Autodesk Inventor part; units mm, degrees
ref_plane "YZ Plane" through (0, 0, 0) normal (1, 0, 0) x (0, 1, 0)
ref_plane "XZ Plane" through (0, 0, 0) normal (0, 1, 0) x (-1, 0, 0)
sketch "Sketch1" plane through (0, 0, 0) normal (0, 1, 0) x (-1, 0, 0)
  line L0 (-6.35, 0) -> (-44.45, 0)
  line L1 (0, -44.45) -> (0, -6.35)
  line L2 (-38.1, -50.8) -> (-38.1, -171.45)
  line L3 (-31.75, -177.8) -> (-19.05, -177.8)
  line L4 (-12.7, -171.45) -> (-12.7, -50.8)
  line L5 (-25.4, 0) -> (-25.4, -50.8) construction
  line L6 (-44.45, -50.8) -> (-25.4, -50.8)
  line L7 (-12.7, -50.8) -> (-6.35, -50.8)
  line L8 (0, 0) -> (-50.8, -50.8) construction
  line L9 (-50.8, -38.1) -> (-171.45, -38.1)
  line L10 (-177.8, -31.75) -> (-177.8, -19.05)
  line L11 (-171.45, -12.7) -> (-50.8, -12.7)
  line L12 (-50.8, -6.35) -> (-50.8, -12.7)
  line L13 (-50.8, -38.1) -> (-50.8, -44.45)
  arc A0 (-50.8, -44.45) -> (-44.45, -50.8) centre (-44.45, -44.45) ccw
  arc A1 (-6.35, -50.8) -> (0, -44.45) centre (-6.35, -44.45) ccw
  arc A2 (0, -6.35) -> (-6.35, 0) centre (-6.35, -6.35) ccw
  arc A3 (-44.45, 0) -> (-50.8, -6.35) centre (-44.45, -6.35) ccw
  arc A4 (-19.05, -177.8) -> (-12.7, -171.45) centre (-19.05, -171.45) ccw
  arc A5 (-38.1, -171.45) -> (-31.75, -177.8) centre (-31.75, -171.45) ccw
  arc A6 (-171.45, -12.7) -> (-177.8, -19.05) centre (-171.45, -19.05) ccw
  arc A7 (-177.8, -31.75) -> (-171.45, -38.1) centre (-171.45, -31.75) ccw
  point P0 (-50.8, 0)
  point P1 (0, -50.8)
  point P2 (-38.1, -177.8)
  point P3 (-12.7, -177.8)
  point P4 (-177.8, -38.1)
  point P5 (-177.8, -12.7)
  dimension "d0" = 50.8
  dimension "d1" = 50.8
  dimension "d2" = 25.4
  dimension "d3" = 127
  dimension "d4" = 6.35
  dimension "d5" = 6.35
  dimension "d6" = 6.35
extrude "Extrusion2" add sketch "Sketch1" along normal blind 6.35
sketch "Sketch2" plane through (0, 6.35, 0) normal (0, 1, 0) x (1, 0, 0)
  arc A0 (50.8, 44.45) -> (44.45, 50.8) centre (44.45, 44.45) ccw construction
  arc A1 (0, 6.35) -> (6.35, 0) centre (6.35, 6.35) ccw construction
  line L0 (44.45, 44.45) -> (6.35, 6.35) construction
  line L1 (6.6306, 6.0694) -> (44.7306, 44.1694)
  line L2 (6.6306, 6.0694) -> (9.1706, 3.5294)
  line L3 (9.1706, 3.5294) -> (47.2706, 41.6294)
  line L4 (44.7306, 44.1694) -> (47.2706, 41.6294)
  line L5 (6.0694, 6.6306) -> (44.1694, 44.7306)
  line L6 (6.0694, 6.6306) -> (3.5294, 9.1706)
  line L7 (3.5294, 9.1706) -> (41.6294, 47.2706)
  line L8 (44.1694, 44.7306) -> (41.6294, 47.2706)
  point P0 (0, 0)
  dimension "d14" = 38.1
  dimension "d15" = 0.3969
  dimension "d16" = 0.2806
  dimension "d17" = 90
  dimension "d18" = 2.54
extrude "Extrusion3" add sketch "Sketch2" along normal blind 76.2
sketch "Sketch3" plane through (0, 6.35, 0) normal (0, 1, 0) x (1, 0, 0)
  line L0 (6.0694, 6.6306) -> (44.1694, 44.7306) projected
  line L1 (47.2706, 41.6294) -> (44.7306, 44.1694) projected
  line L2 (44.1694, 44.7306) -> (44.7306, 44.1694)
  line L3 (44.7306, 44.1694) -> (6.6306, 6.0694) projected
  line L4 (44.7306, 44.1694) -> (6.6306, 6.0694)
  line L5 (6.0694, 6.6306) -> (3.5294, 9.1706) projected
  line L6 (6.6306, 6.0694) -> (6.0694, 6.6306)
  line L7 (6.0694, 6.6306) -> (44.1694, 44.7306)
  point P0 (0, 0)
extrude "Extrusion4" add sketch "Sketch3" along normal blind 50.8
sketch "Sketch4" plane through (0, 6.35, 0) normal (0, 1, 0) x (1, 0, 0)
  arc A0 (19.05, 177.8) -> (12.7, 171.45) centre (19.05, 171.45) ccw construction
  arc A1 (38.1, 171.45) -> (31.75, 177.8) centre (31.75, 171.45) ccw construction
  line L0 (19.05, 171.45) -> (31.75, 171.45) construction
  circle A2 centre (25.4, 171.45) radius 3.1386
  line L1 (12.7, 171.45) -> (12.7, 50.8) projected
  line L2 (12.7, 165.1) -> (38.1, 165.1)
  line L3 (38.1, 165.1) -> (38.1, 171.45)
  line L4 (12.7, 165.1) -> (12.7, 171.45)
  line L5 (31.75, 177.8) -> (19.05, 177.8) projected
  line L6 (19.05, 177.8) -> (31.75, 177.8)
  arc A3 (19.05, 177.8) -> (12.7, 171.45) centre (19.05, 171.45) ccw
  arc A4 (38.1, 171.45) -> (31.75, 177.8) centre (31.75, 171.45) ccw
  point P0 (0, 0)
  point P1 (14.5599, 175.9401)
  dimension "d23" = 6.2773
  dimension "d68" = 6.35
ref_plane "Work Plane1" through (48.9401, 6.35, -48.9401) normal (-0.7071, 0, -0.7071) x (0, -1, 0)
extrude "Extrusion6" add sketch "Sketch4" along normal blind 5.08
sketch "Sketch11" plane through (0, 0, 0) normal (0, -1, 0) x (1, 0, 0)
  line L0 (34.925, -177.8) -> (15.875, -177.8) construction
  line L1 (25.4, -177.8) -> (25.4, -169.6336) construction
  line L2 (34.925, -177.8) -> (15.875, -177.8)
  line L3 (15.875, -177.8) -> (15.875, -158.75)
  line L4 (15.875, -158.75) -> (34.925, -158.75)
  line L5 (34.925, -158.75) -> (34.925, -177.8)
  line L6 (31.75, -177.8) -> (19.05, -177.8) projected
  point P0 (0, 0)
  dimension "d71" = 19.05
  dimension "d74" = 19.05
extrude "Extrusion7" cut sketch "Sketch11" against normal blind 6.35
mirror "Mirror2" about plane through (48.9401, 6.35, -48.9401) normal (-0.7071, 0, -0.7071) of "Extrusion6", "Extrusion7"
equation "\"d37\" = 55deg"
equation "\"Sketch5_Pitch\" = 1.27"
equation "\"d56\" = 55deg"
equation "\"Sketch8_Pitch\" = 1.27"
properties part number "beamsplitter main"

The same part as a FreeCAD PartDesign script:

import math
import FreeCAD as App
import Part
import Sketcher
from FreeCAD import Vector
Q = App.Units.Quantity

doc = App.newDocument("Part")
body = doc.addObject("PartDesign::Body", "Body")

# Sketch on XZ plane
sketch1 = body.newObject("Sketcher::SketchObject", "Sketch")
sketch1.AttachmentSupport = (doc.getObject("XZ_Plane"), [""])
sketch1.MapMode = "FlatFace"
sketch1.addGeometry([
    Part.ArcOfCircle(Part.Circle(Vector(6, -6, 0), Vector(0, 0, 1), 6), math.radians(90), math.radians(180)),  # 0
    Part.LineSegment(Vector(6, 0, 0), Vector(44, 0, 0)),  # 1
    Part.ArcOfCircle(Part.Circle(Vector(44, -6, 0), Vector(0, 0, 1), 6), math.radians(0), math.radians(90)),  # 2
    Part.LineSegment(Vector(51, -6, 0), Vector(51, -13, 0)),  # 3
    Part.LineSegment(Vector(51, -13, 0), Vector(171, -13, 0)),  # 4
    Part.ArcOfCircle(Part.Circle(Vector(171, -19, 0), Vector(0, 0, 1), 6), math.radians(0), math.radians(90)),  # 5
    Part.LineSegment(Vector(178, -19, 0), Vector(178, -32, 0)),  # 6
    Part.ArcOfCircle(Part.Circle(Vector(171, -32, 0), Vector(0, 0, 1), 6), math.radians(-90), math.radians(0)),  # 7
    Part.LineSegment(Vector(171, -38, 0), Vector(51, -38, 0)),  # 8
    Part.LineSegment(Vector(51, -38, 0), Vector(51, -44, 0)),  # 9
    Part.ArcOfCircle(Part.Circle(Vector(44, -44, 0), Vector(0, 0, 1), 6), math.radians(-90), math.radians(0)),  # 10
    Part.LineSegment(Vector(44, -51, 0), Vector(38, -51, 0)),  # 11
    Part.LineSegment(Vector(38, -51, 0), Vector(38, -171, 0)),  # 12
    Part.ArcOfCircle(Part.Circle(Vector(32, -171, 0), Vector(0, 0, 1), 6), math.radians(-90), math.radians(0)),  # 13
    Part.LineSegment(Vector(32, -178, 0), Vector(19, -178, 0)),  # 14
    Part.ArcOfCircle(Part.Circle(Vector(19, -171, 0), Vector(0, 0, 1), 6), math.radians(180), math.radians(270)),  # 15
    Part.LineSegment(Vector(13, -171, 0), Vector(13, -51, 0)),  # 16
    Part.LineSegment(Vector(13, -51, 0), Vector(6, -51, 0)),  # 17
    Part.ArcOfCircle(Part.Circle(Vector(6, -44, 0), Vector(0, 0, 1), 6), math.radians(180), math.radians(270)),  # 18
    Part.LineSegment(Vector(0, -44, 0), Vector(0, -6, 0)),  # 19
], False)
sketch1.addConstraint([
    Sketcher.Constraint("Tangent", 0, 1, 1, 1),
    Sketcher.Constraint("Tangent", 1, 2, 2, 2),
    Sketcher.Constraint("Tangent", 2, 1, 3, 1),
    Sketcher.Constraint("Coincident", 3, 2, 4, 1),
    Sketcher.Constraint("Tangent", 4, 2, 5, 2),
    Sketcher.Constraint("Tangent", 5, 1, 6, 1),
    Sketcher.Constraint("Tangent", 6, 2, 7, 2),
    Sketcher.Constraint("Tangent", 7, 1, 8, 1),
    Sketcher.Constraint("Coincident", 8, 2, 9, 1),
    Sketcher.Constraint("Tangent", 9, 2, 10, 2),
    Sketcher.Constraint("Tangent", 10, 1, 11, 1),
    Sketcher.Constraint("Coincident", 11, 2, 12, 1),
    Sketcher.Constraint("Tangent", 12, 2, 13, 2),
    Sketcher.Constraint("Tangent", 13, 1, 14, 1),
    Sketcher.Constraint("Tangent", 14, 2, 15, 2),
    Sketcher.Constraint("Tangent", 15, 1, 16, 1),
    Sketcher.Constraint("Coincident", 16, 2, 17, 1),
    Sketcher.Constraint("Tangent", 17, 2, 18, 2),
    Sketcher.Constraint("Tangent", 18, 1, 19, 1),
    Sketcher.Constraint("Tangent", 19, 2, 0, 2),
    Sketcher.Constraint("Horizontal", 1),
    Sketcher.Constraint("Vertical", 3),
    Sketcher.Constraint("Horizontal", 4),
    Sketcher.Constraint("Vertical", 6),
    Sketcher.Constraint("Horizontal", 8),
    Sketcher.Constraint("Vertical", 9),
    Sketcher.Constraint("Horizontal", 11),
    Sketcher.Constraint("Vertical", 12),
    Sketcher.Constraint("Horizontal", 14),
    Sketcher.Constraint("Vertical", 16),
    Sketcher.Constraint("Horizontal", 17),
    Sketcher.Constraint("Vertical", 19),
    Sketcher.Constraint("Equal", 0, 2),
    Sketcher.Constraint("Equal", 2, 5),
    Sketcher.Constraint("Equal", 5, 7),
    Sketcher.Constraint("Equal", 7, 10),
    Sketcher.Constraint("Equal", 10, 13),
    Sketcher.Constraint("Equal", 13, 15),
    Sketcher.Constraint("Equal", 15, 18),
    Sketcher.Constraint("PointOnObject", 0, 1, -1),
    Sketcher.Constraint("PointOnObject", 18, 1, -2),
    Sketcher.Constraint("Horizontal", 10, 3, 18, 3),
    Sketcher.Constraint("Vertical", 2, 3, 10, 3),
    Sketcher.Constraint("Equal", 11, 17),
    Sketcher.Constraint("Equal", 17, 3),
    Sketcher.Constraint("Equal", 14, 6),
    Sketcher.Constraint("Equal", 3, 9),
    Sketcher.Constraint("Equal", 8, 12),
    Sketcher.Constraint("Radius", 0, Q("0.25 in")),
    Sketcher.Constraint("DistanceX", -1, 1, 2, 1, Q("2 in")),
    Sketcher.Constraint("DistanceX", 2, 3, 5, 3, Q("5 in")),
    Sketcher.Constraint("DistanceY", 7, 3, 2, 3, Q("1 in")),
])
pad1 = body.newObject("PartDesign::Pad", "Pad")
pad1.Profile = sketch1
pad1.Length = Q("0.25 in")
pad1.Reversed = True

# Sketch on XZ plane
sketch2 = body.newObject("Sketcher::SketchObject", "Sketch001")
sketch2.AttachmentSupport = (doc.getObject("XZ_Plane"), [""])
sketch2.MapMode = "FlatFace"
sketch2.AttachmentOffset = App.Placement(Vector(0, 0, -0.25 * 25.4), App.Rotation())
sketch2.addGeometry([
    Part.LineSegment(Vector(44.7, -44.2, 0), Vector(6.6, -6.1, 0)),  # 0
    Part.LineSegment(Vector(6.6, -6.1, 0), Vector(9.2, -3.5, 0)),  # 1
    Part.LineSegment(Vector(9.2, -3.5, 0), Vector(47.3, -41.6, 0)),  # 2
    Part.LineSegment(Vector(47.3, -41.6, 0), Vector(44.7, -44.2, 0)),  # 3
    Part.LineSegment(Vector(3.5, -9.2, 0), Vector(6.1, -6.6, 0)),  # 4
    Part.LineSegment(Vector(6.1, -6.6, 0), Vector(44.2, -44.7, 0)),  # 5
    Part.LineSegment(Vector(44.2, -44.7, 0), Vector(41.6, -47.3, 0)),  # 6
    Part.LineSegment(Vector(41.6, -47.3, 0), Vector(3.5, -9.2, 0)),  # 7
], False)
sketch2.addConstraint([
    Sketcher.Constraint("Coincident", 0, 2, 1, 1),
    Sketcher.Constraint("Coincident", 1, 2, 2, 1),
    Sketcher.Constraint("Coincident", 2, 2, 3, 1),
    Sketcher.Constraint("Coincident", 3, 2, 0, 1),
    Sketcher.Constraint("Coincident", 4, 2, 5, 1),
    Sketcher.Constraint("Coincident", 5, 2, 6, 1),
    Sketcher.Constraint("Coincident", 6, 2, 7, 1),
    Sketcher.Constraint("Coincident", 7, 2, 4, 1),
    Sketcher.Constraint("Perpendicular", 0, 1),
    Sketcher.Constraint("Perpendicular", 1, 2),
    Sketcher.Constraint("Perpendicular", 2, 3),
    Sketcher.Constraint("Parallel", 3, 4),
    Sketcher.Constraint("Perpendicular", 4, 5),
    Sketcher.Constraint("Perpendicular", 5, 6),
    Sketcher.Constraint("Perpendicular", 6, 7),
    Sketcher.Constraint("Equal", 3, 4),
    Sketcher.Constraint("Equal", 2, 5),
    Sketcher.Constraint("DistanceX", 0, 2, 1, 2, Q("0.1 in")),
    Sketcher.Constraint("DistanceY", 0, 2, 1, 2, Q("0.1 in")),
    Sketcher.Constraint("DistanceX", 1, 2, 2, 2, Q("1.5 in")),
    Sketcher.Constraint("DistanceX", 4, 2, 0, 2, Q("0.0221 in")),
    Sketcher.Constraint("DistanceY", 4, 2, 0, 2, Q("0.0221 in")),
    Sketcher.Constraint("DistanceX", -1, 1, 0, 2, 6.6306),
    Sketcher.Constraint("DistanceY", 0, 2, -1, 1, 6.0694),
])
pad2 = body.newObject("PartDesign::Pad", "Pad001")
pad2.Profile = sketch2
pad2.Length = Q("3 in")
pad2.Reversed = True

# Sketch on XZ plane
sketch3 = body.newObject("Sketcher::SketchObject", "Sketch002")
sketch3.AttachmentSupport = (doc.getObject("XZ_Plane"), [""])
sketch3.MapMode = "FlatFace"
sketch3.AttachmentOffset = App.Placement(Vector(0, 0, -0.25 * 25.4), App.Rotation())
sketch3.addGeometry([
    Part.LineSegment(Vector(44.2, -44.7, 0), Vector(6.1, -6.6, 0)),
    Part.LineSegment(Vector(6.1, -6.6, 0), Vector(6.6, -6.1, 0)),
    Part.LineSegment(Vector(6.6, -6.1, 0), Vector(44.7, -44.2, 0)),
    Part.LineSegment(Vector(44.7, -44.2, 0), Vector(44.2, -44.7, 0)),
], False)
sketch3.addConstraint([
    Sketcher.Constraint("Coincident", 0, 2, 1, 1),
    Sketcher.Constraint("Coincident", 1, 2, 2, 1),
    Sketcher.Constraint("Coincident", 2, 2, 3, 1),
    Sketcher.Constraint("Coincident", 3, 2, 0, 1),
    Sketcher.Constraint("Perpendicular", 0, 1),
    Sketcher.Constraint("Perpendicular", 1, 2),
    Sketcher.Constraint("Perpendicular", 2, 3),
    Sketcher.Constraint("Angle", 0, Q("135 deg")),
    Sketcher.Constraint("DistanceX", 1, 2, 2, 2, Q("1.5 in")),
    Sketcher.Constraint("Distance", 1, Q("0.031248 in")),
    Sketcher.Constraint("DistanceX", -1, 1, 0, 2, 6.0694),
    Sketcher.Constraint("DistanceY", 0, 2, -1, 1, 6.6306),
])
pad3 = body.newObject("PartDesign::Pad", "Pad002")
pad3.Profile = sketch3
pad3.Length = Q("2 in")
pad3.Reversed = True

# Sketch on XZ plane
sketch4 = body.newObject("Sketcher::SketchObject", "Sketch003")
sketch4.AttachmentSupport = (doc.getObject("XZ_Plane"), [""])
sketch4.MapMode = "FlatFace"
sketch4.AttachmentOffset = App.Placement(Vector(0, 0, -0.25 * 25.4), App.Rotation())
sketch4.addGeometry([
    Part.ArcOfCircle(Part.Circle(Vector(19.1, -171.4, 0), Vector(0, 0, 1), 6.4), math.radians(180), math.radians(270)),  # 0
    Part.LineSegment(Vector(12.7, -171.4, 0), Vector(12.7, -165.1, 0)),  # 1
    Part.LineSegment(Vector(12.7, -165.1, 0), Vector(38.1, -165.1, 0)),  # 2
    Part.LineSegment(Vector(38.1, -165.1, 0), Vector(38.1, -171.4, 0)),  # 3
    Part.ArcOfCircle(Part.Circle(Vector(31.8, -171.4, 0), Vector(0, 0, 1), 6.4), math.radians(-90), math.radians(0)),  # 4
    Part.LineSegment(Vector(31.8, -177.8, 0), Vector(19.1, -177.8, 0)),  # 5
    Part.Circle(Vector(25.4, -171.4, 0), Vector(0, 0, 1), 3.1),  # 6
], False)
sketch4.addConstraint([
    Sketcher.Constraint("Tangent", 0, 1, 1, 1),
    Sketcher.Constraint("Coincident", 1, 2, 2, 1),
    Sketcher.Constraint("Coincident", 2, 2, 3, 1),
    Sketcher.Constraint("Tangent", 3, 2, 4, 2),
    Sketcher.Constraint("Tangent", 4, 1, 5, 1),
    Sketcher.Constraint("Tangent", 5, 2, 0, 2),
    Sketcher.Constraint("Vertical", 1),
    Sketcher.Constraint("Horizontal", 2),
    Sketcher.Constraint("Vertical", 3),
    Sketcher.Constraint("Horizontal", 5),
    Sketcher.Constraint("Equal", 0, 4),
    Sketcher.Constraint("Horizontal", 4, 3, 6, 3),
    Sketcher.Constraint("Radius", 0, Q("0.25 in")),
    Sketcher.Constraint("DistanceY", 1, 1, 1, 2, Q("0.25 in")),
    Sketcher.Constraint("Diameter", 6, 6.2772),
    Sketcher.Constraint("DistanceX", 2, 1, 2, 2, Q("1 in")),
    Sketcher.Constraint("DistanceX", 0, 3, 6, 3, Q("0.25 in")),
    Sketcher.Constraint("DistanceX", -1, 1, 6, 3, Q("1 in")),
    Sketcher.Constraint("DistanceY", 4, 1, -1, 1, Q("7 in")),
])
pad4 = body.newObject("PartDesign::Pad", "Pad003")
pad4.Profile = sketch4
pad4.Length = Q("0.2 in")
pad4.Reversed = True

# Sketch on XZ plane
sketch5 = body.newObject("Sketcher::SketchObject", "Sketch004")
sketch5.AttachmentSupport = (doc.getObject("XZ_Plane"), [""])
sketch5.MapMode = "FlatFace"
sketch5.addGeometry([
    Part.LineSegment(Vector(16, -178, 0), Vector(35, -178, 0)),
    Part.LineSegment(Vector(35, -178, 0), Vector(35, -159, 0)),
    Part.LineSegment(Vector(35, -159, 0), Vector(16, -159, 0)),
    Part.LineSegment(Vector(16, -159, 0), Vector(16, -178, 0)),
], False)
sketch5.addConstraint([
    Sketcher.Constraint("Coincident", 0, 2, 1, 1),
    Sketcher.Constraint("Coincident", 1, 2, 2, 1),
    Sketcher.Constraint("Coincident", 2, 2, 3, 1),
    Sketcher.Constraint("Coincident", 3, 2, 0, 1),
    Sketcher.Constraint("Horizontal", 0),
    Sketcher.Constraint("Vertical", 1),
    Sketcher.Constraint("Horizontal", 2),
    Sketcher.Constraint("Vertical", 3),
    Sketcher.Constraint("Equal", 2, 1),
    Sketcher.Constraint("DistanceX", 0, 1, 0, 2, Q("0.75 in")),
    Sketcher.Constraint("DistanceY", 0, 2, -1, 1, Q("7 in")),
    Sketcher.Constraint("DistanceX", -1, 1, 0, 2, Q("1.375 in")),
])
pocket1 = body.newObject("PartDesign::Pocket", "Pocket")
pocket1.Profile = sketch5
pocket1.Length = Q("0.25 in")
doc.recompute()

datumplane = body.newObject("PartDesign::Plane", "DatumPlane")
datumplane.Placement = App.Placement(Vector(0, 0, 0), App.Rotation(Vector(0.707106781, 0, -0.707106781), Vector(0, -1, 0), Vector(-0.707106781, 0, -0.707106781), "ZXY"))
mirrored = body.newObject("PartDesign::Mirrored", "Mirrored")
mirrored.Originals = [pad4, pocket1]
mirrored.MirrorPlane = (datumplane, [""])
body.Tip = mirrored

doc.recompute()
